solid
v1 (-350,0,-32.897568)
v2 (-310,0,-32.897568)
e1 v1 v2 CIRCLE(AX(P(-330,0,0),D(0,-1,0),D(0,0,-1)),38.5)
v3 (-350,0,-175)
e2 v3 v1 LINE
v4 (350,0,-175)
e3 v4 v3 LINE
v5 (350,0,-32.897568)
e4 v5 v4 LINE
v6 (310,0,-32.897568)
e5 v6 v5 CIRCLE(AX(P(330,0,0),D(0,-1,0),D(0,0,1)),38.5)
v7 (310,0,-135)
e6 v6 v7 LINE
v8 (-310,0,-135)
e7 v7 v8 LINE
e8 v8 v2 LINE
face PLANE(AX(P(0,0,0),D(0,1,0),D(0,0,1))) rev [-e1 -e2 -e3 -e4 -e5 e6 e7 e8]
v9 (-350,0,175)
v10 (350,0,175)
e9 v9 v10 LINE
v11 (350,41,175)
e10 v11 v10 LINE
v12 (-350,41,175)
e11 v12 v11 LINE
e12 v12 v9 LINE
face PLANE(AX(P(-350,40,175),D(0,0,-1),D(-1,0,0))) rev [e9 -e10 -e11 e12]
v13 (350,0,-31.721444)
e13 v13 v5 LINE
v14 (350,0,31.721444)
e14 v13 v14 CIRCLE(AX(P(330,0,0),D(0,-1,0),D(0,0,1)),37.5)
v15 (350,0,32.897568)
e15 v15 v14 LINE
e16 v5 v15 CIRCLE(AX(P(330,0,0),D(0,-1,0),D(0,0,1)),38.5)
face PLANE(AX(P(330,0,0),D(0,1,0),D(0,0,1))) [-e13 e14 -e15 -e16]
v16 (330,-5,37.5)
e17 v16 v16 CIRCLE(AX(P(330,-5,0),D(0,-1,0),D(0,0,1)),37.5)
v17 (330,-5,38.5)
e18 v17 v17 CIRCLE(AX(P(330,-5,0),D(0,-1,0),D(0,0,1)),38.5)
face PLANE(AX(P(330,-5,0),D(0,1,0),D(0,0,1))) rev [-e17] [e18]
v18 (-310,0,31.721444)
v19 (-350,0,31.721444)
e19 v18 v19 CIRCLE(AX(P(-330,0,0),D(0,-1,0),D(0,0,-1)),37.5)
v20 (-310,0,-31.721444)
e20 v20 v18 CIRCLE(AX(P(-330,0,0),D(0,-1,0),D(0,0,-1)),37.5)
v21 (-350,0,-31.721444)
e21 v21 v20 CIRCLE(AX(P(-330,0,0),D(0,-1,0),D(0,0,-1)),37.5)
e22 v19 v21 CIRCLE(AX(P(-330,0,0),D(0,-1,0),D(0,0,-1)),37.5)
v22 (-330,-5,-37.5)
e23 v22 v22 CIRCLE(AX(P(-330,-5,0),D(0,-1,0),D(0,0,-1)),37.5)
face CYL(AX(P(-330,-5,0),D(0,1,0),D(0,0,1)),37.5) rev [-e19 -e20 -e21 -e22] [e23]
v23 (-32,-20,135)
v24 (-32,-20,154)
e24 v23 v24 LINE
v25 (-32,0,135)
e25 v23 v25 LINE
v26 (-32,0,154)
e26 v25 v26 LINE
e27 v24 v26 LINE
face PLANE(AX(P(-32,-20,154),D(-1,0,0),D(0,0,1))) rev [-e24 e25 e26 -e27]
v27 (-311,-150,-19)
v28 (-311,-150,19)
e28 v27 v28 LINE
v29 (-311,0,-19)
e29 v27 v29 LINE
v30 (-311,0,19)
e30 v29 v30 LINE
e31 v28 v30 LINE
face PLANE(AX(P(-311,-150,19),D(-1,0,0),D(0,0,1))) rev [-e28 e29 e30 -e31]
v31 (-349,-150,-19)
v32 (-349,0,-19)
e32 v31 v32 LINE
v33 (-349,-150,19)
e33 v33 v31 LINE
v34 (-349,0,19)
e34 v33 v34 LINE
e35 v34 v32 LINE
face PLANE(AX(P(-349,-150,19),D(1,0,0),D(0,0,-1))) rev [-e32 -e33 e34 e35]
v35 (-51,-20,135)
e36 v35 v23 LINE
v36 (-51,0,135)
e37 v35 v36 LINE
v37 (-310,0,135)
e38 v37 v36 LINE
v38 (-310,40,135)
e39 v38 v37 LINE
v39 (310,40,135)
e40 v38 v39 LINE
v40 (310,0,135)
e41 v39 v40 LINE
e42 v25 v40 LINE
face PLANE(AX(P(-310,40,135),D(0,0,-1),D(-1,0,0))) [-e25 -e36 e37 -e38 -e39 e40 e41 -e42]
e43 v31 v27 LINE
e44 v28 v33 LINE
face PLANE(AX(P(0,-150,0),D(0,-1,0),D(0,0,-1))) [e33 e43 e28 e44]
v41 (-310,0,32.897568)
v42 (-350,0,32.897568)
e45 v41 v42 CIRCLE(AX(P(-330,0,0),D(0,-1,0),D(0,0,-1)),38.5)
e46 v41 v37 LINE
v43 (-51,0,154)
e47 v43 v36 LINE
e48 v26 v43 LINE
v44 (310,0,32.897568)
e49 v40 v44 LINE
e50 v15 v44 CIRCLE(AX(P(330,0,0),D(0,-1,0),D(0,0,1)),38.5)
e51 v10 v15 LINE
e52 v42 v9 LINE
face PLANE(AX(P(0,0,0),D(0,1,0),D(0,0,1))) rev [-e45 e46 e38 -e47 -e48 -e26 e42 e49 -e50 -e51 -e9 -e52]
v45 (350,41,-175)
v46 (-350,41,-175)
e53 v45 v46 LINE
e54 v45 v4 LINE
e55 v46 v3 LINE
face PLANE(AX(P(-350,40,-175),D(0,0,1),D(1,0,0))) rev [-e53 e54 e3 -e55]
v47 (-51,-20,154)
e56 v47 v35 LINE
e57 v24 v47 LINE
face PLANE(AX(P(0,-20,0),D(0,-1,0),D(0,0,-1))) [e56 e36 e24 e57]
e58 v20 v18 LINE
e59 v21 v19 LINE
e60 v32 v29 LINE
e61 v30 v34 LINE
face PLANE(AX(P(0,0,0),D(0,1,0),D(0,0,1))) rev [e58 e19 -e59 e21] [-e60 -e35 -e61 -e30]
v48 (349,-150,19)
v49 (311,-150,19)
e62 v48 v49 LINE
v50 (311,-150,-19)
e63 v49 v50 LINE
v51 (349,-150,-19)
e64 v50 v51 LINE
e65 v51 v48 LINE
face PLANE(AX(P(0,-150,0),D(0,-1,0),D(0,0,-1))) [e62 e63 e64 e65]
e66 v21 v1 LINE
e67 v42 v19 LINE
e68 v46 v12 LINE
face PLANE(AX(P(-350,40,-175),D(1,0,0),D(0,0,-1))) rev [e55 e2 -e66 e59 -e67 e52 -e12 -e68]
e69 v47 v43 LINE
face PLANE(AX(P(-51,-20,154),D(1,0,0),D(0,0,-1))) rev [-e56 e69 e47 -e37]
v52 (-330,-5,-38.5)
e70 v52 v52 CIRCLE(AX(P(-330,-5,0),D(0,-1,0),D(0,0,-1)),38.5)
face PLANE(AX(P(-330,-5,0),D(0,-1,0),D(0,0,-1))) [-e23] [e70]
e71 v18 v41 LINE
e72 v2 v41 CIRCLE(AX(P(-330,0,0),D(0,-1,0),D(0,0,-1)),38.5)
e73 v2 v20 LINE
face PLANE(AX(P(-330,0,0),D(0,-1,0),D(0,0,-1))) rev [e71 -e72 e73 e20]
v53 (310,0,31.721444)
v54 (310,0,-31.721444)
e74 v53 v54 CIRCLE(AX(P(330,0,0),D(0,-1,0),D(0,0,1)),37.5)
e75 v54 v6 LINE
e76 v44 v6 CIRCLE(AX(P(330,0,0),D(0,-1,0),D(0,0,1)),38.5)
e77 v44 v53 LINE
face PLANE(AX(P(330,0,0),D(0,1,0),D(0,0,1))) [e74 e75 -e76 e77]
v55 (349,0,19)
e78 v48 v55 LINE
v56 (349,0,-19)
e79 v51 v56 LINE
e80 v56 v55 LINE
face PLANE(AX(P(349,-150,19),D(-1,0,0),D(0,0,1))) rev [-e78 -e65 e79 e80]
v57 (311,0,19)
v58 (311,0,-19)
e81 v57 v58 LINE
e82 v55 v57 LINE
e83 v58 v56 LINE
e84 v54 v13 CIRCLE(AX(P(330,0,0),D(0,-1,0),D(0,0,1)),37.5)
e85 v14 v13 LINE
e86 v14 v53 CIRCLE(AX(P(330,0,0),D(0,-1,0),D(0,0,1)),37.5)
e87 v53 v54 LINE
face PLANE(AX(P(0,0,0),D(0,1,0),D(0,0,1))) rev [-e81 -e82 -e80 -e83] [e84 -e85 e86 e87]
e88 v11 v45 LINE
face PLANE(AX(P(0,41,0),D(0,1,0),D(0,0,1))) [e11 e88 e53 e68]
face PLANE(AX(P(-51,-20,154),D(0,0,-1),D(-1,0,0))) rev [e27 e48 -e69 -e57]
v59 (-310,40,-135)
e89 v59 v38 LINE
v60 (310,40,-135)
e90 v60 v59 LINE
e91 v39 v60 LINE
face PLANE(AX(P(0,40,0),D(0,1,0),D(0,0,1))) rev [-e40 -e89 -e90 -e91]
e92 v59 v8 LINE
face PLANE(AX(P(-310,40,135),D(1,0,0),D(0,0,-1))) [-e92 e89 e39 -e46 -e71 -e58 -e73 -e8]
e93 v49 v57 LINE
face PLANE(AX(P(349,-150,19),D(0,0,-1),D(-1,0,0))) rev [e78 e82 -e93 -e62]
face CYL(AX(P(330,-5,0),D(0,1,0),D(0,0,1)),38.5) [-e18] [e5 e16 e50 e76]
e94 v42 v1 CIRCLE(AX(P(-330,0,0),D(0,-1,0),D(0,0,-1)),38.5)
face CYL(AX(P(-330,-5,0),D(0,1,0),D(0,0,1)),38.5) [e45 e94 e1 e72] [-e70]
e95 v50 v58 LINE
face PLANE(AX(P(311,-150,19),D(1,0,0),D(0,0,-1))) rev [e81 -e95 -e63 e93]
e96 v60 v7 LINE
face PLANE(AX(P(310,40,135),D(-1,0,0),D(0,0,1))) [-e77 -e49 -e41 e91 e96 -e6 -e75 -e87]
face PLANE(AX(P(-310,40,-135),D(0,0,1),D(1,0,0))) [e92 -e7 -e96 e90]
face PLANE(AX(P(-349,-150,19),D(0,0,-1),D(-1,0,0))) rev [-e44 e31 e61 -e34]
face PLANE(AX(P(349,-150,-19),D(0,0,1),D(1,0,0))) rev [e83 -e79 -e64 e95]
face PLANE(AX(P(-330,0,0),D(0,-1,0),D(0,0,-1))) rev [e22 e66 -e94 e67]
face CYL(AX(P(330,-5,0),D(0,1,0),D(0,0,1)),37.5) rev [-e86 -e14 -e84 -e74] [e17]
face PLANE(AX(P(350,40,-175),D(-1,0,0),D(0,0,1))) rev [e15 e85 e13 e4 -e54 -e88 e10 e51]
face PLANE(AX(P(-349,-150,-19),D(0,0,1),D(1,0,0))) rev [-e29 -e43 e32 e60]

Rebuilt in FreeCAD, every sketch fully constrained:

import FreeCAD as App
import Part
import Sketcher
from FreeCAD import Vector


def add_polygon(sketch, points):
    """Adds a closed chain of lines whose ends are joined by coincident constraints."""
    first, n = sketch.GeometryCount, len(points)
    for a, b in zip(points, points[1:] + points[:1]):
        sketch.addGeometry(Part.LineSegment(App.Vector(*a, 0), App.Vector(*b, 0)), False)
    for i in range(n):
        sketch.addConstraint(Sketcher.Constraint("Coincident", first + i, 2, first + (i + 1) % n, 1))

doc = App.newDocument("Part")
body = doc.addObject("PartDesign::Body", "Body")

# Sketch on XZ plane
sketch1 = body.newObject("Sketcher::SketchObject", "Sketch")
sketch1.AttachmentSupport = (doc.getObject("XZ_Plane"), [""])
sketch1.MapMode = "FlatFace"
add_polygon(sketch1, [(-350, -175), (-350, 175), (350, 175), (350, -175)])  # lines 0-3
add_polygon(sketch1, [(310, 135), (-310, 135), (-310, -135), (310, -135)])  # lines 4-7
sketch1.addConstraint(Sketcher.Constraint("Vertical", 0))
sketch1.addConstraint(Sketcher.Constraint("Horizontal", 1))
sketch1.addConstraint(Sketcher.Constraint("Vertical", 2))
sketch1.addConstraint(Sketcher.Constraint("Horizontal", 3))
sketch1.addConstraint(Sketcher.Constraint("Horizontal", 4))
sketch1.addConstraint(Sketcher.Constraint("Vertical", 5))
sketch1.addConstraint(Sketcher.Constraint("Horizontal", 6))
sketch1.addConstraint(Sketcher.Constraint("Vertical", 7))
sketch1.addConstraint(Sketcher.Constraint("Symmetric", 0, 2, 2, 2, -1, 1))
sketch1.addConstraint(Sketcher.Constraint("Symmetric", 4, 2, 6, 2, -1, 1))
sketch1.addConstraint(Sketcher.Constraint("DistanceX", 1, 1, 1, 2, 700.0))
sketch1.addConstraint(Sketcher.Constraint("DistanceX", 4, 2, 4, 1, 620.0))
sketch1.addConstraint(Sketcher.Constraint("DistanceY", 0, 1, 0, 2, 350.0))
sketch1.addConstraint(Sketcher.Constraint("DistanceY", 5, 2, 5, 1, 270.0))
pad1 = body.newObject("PartDesign::Pad", "Pad")
pad1.Profile = sketch1
pad1.Length = 40
pad1.Reversed = True

# Sketch on XZ plane
sketch2 = body.newObject("Sketcher::SketchObject", "Sketch001")
sketch2.AttachmentSupport = (doc.getObject("XZ_Plane"), [""])
sketch2.MapMode = "FlatFace"
sketch2.AttachmentOffset = App.Placement(Vector(0, 0, -40), App.Rotation())
add_polygon(sketch2, [(-350, -175), (-350, 175), (350, 175), (350, -175)])  # lines 0-3
sketch2.addConstraint(Sketcher.Constraint("Vertical", 0))
sketch2.addConstraint(Sketcher.Constraint("Horizontal", 1))
sketch2.addConstraint(Sketcher.Constraint("Vertical", 2))
sketch2.addConstraint(Sketcher.Constraint("Horizontal", 3))
sketch2.addConstraint(Sketcher.Constraint("Symmetric", 0, 2, 2, 2, -1, 1))
sketch2.addConstraint(Sketcher.Constraint("DistanceX", 1, 1, 1, 2, 700.0))
sketch2.addConstraint(Sketcher.Constraint("DistanceY", 0, 1, 0, 2, 350.0))
pad2 = body.newObject("PartDesign::Pad", "Pad001")
pad2.Profile = sketch2
pad2.Length = 1
pad2.Reversed = True

# Sketch on XZ plane
sketch3 = body.newObject("Sketcher::SketchObject", "Sketch002")
sketch3.AttachmentSupport = (doc.getObject("XZ_Plane"), [""])
sketch3.MapMode = "FlatFace"
add_polygon(sketch3, [(-349, 19), (-349, -19), (-311, -19), (-311, 19)])  # lines 0-3
add_polygon(sketch3, [(311, 19), (311, -19), (349, -19), (349, 19)])  # lines 4-7
sketch3.addConstraint(Sketcher.Constraint("Vertical", 0))
sketch3.addConstraint(Sketcher.Constraint("Horizontal", 1))
sketch3.addConstraint(Sketcher.Constraint("Vertical", 2))
sketch3.addConstraint(Sketcher.Constraint("Horizontal", 3))
sketch3.addConstraint(Sketcher.Constraint("Vertical", 4))
sketch3.addConstraint(Sketcher.Constraint("Horizontal", 5))
sketch3.addConstraint(Sketcher.Constraint("Vertical", 6))
sketch3.addConstraint(Sketcher.Constraint("Horizontal", 7))
sketch3.addConstraint(Sketcher.Constraint("Symmetric", 2, 2, 4, 2, -1, 1))
sketch3.addConstraint(Sketcher.Constraint("Symmetric", 0, 2, 6, 2, -1, 1))
sketch3.addConstraint(Sketcher.Constraint("Horizontal", 1, 2, 4, 2))
sketch3.addConstraint(Sketcher.Constraint("Equal", 7, 0))
sketch3.addConstraint(Sketcher.Constraint("DistanceX", 1, 1, 1, 2, 38.0))
sketch3.addConstraint(Sketcher.Constraint("DistanceX", 0, 2, -1, 1, 349.0))
pad3 = body.newObject("PartDesign::Pad", "Pad002")
pad3.Profile = sketch3
pad3.Length = 150

# Sketch on XZ plane
sketch4 = body.newObject("Sketcher::SketchObject", "Sketch003")
sketch4.AttachmentSupport = (doc.getObject("XZ_Plane"), [""])
sketch4.MapMode = "FlatFace"
add_polygon(sketch4, [(-51, 154), (-51, 135), (-32, 135), (-32, 154)])  # lines 0-3
sketch4.addConstraint(Sketcher.Constraint("Vertical", 0))
sketch4.addConstraint(Sketcher.Constraint("Horizontal", 1))
sketch4.addConstraint(Sketcher.Constraint("Vertical", 2))
sketch4.addConstraint(Sketcher.Constraint("Horizontal", 3))
sketch4.addConstraint(Sketcher.Constraint("Equal", 3, 0))
sketch4.addConstraint(Sketcher.Constraint("DistanceX", 1, 1, 1, 2, 19.0))
sketch4.addConstraint(Sketcher.Constraint("DistanceX", 0, 2, -1, 1, 51.0))
sketch4.addConstraint(Sketcher.Constraint("DistanceY", -1, 1, 0, 2, 135.0))
pad4 = body.newObject("PartDesign::Pad", "Pad003")
pad4.Profile = sketch4
pad4.Length = 20

# Sketch on XZ plane
sketch5 = body.newObject("Sketcher::SketchObject", "Sketch004")
sketch5.AttachmentSupport = (doc.getObject("XZ_Plane"), [""])
sketch5.MapMode = "FlatFace"
sketch5.addGeometry(Part.Circle(Vector(-330, 0, 0), Vector(0, 0, 1), 38), False)
sketch5.addGeometry(Part.Circle(Vector(-330, 0, 0), Vector(0, 0, 1), 38), False)
sketch5.addGeometry(Part.Circle(Vector(330, 0, 0), Vector(0, 0, 1), 38), False)
sketch5.addGeometry(Part.Circle(Vector(330, 0, 0), Vector(0, 0, 1), 38), False)
sketch5.addConstraint(Sketcher.Constraint("Coincident", 1, 3, 0, 3))
sketch5.addConstraint(Sketcher.Constraint("Coincident", 3, 3, 2, 3))
sketch5.addConstraint(Sketcher.Constraint("Equal", 0, 2))
sketch5.addConstraint(Sketcher.Constraint("Equal", 1, 3))
sketch5.addConstraint(Sketcher.Constraint("Symmetric", 0, 3, 2, 3, -1, 1))
sketch5.addConstraint(Sketcher.Constraint("PointOnObject", 0, 3, -1))
sketch5.addConstraint(Sketcher.Constraint("Diameter", 0, 77.0))
sketch5.addConstraint(Sketcher.Constraint("Diameter", 1, 75.0))
sketch5.addConstraint(Sketcher.Constraint("DistanceX", 0, 3, -1, 1, 330.0))
pad5 = body.newObject("PartDesign::Pad", "Pad004")
pad5.Profile = sketch5
pad5.Length = 5

doc.recompute()
